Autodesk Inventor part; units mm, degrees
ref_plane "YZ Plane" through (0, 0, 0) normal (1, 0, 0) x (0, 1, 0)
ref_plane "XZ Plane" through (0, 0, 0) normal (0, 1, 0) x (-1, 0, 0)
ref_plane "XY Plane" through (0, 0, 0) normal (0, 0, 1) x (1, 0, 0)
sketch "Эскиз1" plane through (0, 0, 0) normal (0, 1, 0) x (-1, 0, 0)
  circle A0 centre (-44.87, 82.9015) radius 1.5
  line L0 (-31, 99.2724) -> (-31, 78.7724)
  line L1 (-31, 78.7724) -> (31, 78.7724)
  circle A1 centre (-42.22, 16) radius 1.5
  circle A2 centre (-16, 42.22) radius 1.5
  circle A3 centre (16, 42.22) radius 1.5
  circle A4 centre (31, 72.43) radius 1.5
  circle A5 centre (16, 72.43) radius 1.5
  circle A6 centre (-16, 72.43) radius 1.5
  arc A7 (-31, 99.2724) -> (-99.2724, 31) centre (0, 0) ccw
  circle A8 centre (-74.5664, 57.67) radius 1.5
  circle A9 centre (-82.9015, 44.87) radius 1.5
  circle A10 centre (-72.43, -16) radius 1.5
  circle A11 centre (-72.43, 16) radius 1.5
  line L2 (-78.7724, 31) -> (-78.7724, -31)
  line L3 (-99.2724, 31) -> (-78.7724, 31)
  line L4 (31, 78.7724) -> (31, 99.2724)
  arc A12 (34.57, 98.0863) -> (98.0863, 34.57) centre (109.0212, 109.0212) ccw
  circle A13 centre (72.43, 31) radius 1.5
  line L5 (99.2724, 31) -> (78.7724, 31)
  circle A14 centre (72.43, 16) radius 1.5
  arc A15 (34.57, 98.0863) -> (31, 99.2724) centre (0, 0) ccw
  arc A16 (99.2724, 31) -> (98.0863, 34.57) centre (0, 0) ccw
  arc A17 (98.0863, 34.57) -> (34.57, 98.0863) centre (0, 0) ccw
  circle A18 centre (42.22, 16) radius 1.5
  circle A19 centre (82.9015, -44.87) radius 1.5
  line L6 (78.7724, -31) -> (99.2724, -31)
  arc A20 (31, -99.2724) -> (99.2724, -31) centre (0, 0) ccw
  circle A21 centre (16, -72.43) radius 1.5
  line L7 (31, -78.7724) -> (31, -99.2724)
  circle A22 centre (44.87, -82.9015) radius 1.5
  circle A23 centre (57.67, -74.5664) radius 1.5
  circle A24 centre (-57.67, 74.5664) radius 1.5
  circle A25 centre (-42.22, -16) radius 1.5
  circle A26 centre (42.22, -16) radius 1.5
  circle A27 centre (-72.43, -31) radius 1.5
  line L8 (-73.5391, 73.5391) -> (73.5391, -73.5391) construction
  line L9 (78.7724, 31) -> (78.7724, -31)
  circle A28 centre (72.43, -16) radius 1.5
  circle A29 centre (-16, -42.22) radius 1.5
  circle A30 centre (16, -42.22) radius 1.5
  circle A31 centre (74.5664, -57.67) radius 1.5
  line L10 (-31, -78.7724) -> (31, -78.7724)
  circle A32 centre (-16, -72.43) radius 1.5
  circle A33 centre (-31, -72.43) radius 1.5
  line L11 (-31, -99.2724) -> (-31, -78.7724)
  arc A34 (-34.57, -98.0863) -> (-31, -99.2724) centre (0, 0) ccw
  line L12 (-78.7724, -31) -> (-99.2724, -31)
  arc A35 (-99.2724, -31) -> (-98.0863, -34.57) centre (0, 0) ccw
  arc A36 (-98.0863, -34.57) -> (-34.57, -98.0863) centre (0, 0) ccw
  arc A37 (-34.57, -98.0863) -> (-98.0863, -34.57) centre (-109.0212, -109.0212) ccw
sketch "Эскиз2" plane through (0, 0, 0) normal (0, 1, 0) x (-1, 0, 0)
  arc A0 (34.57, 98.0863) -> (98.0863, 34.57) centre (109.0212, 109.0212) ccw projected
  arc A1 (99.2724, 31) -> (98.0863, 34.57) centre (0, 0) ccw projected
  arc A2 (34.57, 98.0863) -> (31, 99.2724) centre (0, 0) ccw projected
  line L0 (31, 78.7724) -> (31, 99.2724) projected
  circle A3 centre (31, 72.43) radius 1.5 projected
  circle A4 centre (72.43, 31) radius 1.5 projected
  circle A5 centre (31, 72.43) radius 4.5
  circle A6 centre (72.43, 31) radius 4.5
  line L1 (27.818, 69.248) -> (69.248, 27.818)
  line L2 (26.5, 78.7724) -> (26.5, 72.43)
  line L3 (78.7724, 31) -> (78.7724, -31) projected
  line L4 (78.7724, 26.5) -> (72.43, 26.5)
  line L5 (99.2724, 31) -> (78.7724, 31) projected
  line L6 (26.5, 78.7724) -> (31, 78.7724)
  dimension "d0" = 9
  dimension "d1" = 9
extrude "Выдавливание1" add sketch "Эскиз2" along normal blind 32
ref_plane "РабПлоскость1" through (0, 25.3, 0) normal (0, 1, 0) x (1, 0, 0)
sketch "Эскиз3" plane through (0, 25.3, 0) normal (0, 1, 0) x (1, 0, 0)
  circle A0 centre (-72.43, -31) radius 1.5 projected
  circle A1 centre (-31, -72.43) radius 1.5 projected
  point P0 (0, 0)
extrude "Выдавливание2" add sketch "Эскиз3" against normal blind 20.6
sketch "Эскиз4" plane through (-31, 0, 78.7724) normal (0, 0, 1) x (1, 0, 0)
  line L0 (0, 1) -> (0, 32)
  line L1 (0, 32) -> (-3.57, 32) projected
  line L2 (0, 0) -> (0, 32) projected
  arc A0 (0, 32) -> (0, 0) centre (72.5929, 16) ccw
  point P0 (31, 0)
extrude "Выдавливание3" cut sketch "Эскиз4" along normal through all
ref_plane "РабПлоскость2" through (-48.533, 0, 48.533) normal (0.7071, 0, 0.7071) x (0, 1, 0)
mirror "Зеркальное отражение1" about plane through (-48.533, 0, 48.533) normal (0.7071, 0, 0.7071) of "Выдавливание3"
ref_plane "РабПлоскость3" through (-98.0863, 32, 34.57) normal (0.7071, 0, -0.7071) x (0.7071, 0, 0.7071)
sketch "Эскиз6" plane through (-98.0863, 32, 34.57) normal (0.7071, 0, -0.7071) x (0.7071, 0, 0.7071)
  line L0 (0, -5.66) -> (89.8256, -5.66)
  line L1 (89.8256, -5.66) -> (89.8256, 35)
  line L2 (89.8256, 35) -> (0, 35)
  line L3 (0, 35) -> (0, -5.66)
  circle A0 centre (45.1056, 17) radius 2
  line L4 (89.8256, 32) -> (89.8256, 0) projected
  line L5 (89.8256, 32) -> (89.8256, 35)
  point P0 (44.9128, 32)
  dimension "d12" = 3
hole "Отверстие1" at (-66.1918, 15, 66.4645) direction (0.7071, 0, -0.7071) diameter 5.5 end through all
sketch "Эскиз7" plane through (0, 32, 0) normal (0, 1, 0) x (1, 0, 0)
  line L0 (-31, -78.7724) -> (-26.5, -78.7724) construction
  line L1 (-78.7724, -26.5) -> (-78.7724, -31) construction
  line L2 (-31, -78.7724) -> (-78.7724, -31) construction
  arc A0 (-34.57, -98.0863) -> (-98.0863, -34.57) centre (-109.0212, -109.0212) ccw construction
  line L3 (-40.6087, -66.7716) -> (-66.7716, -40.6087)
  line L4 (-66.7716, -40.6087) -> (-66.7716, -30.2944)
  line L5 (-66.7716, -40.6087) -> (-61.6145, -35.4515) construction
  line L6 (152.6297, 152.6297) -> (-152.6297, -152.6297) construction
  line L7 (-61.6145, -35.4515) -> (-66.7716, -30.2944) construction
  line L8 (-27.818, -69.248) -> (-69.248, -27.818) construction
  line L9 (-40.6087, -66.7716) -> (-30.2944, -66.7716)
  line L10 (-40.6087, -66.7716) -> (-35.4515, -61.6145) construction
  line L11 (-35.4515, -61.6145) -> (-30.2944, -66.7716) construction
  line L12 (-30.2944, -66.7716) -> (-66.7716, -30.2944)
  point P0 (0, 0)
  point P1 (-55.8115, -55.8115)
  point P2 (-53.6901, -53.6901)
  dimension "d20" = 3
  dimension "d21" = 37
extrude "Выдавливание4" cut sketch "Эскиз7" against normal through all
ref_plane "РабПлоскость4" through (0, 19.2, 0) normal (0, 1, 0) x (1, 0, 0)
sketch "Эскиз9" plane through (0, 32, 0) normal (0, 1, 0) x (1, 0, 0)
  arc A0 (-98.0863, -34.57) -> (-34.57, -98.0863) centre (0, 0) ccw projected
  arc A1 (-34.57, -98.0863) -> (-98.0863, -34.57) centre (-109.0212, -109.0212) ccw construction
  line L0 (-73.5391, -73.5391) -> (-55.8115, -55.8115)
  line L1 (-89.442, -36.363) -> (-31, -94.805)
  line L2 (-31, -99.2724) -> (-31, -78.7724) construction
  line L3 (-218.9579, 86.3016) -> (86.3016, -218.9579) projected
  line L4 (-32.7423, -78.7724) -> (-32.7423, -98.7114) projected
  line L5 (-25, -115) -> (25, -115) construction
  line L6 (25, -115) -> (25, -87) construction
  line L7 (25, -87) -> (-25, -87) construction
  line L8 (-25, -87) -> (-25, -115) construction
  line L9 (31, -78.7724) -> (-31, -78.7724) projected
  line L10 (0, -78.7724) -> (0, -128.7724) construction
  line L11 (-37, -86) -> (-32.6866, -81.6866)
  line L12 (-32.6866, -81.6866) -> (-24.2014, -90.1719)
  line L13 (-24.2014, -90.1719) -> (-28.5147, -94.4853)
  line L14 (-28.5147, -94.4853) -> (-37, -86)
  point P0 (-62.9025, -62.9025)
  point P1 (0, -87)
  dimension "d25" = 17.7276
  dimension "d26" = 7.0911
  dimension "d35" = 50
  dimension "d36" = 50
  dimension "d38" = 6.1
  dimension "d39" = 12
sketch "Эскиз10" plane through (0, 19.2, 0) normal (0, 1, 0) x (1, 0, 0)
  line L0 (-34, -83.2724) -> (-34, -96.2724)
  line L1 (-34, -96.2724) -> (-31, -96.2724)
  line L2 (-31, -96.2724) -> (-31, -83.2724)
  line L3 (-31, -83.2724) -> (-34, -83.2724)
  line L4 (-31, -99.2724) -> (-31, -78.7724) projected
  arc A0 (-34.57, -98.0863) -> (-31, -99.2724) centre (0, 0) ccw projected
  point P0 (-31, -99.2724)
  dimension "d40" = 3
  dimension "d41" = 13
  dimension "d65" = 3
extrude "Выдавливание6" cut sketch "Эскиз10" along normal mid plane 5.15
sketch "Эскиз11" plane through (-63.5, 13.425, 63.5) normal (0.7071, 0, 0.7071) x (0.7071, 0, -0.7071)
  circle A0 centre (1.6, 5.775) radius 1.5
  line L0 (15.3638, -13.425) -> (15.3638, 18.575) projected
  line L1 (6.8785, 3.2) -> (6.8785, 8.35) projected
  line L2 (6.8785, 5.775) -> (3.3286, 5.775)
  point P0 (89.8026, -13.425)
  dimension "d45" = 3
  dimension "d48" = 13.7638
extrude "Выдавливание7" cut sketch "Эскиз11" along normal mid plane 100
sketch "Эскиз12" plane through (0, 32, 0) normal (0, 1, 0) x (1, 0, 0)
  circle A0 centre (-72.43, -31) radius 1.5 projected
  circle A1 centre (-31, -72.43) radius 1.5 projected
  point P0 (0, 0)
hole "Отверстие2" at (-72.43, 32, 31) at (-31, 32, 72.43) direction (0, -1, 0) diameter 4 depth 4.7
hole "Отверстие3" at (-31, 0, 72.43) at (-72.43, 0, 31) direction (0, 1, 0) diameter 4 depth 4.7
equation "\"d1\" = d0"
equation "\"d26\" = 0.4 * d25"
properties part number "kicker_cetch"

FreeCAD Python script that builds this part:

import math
import FreeCAD as App
import Part
import Sketcher

V = App.Vector
Q = App.Units.Quantity


def add_polygon(sketch, points):
    """Adds a closed chain of lines whose ends are joined by coincident constraints."""
    first, n = sketch.GeometryCount, len(points)
    for a, b in zip(points, points[1:] + points[:1]):
        sketch.addGeometry(Part.LineSegment(App.Vector(*a, 0), App.Vector(*b, 0)), False)
    for i in range(n):
        sketch.addConstraint(Sketcher.Constraint("Coincident", first + i, 2, first + (i + 1) % n, 1))

doc = App.newDocument("Part")
body = doc.addObject("PartDesign::Body", "Body")

sketch1 = body.newObject("Sketcher::SketchObject", "Sketch")
sketch1.AttachmentSupport = (doc.getObject("XZ_Plane"), [""])
sketch1.MapMode = "FlatFace"
sketch1.addGeometry([
    Part.ArcOfCircle(Part.Circle(V(-109, 109, 0), V(0, 0, 1), 75.2), math.radians(-82), math.radians(-8)),
    Part.ArcOfCircle(Part.Circle(V(0, 0, 0), V(0, 0, 1), 104), math.radians(107.34), math.radians(109.41)),
    Part.LineSegment(V(-31, 99.3, 0), V(-31, 78.8, 0)),
    Part.LineSegment(V(-31, 78.8, 0), V(-26.5, 78.8, 0)),
    Part.LineSegment(V(-26.5, 78.8, 0), V(-26.5, 72.4, 0)),
    Part.ArcOfCircle(Part.Circle(V(-31, 72.4, 0), V(0, 0, 1), 4.5), math.radians(-45), math.radians(0)),
    Part.LineSegment(V(-27.8, 69.2, 0), V(-69.2, 27.8, 0)),
    Part.ArcOfCircle(Part.Circle(V(-72.4, 31, 0), V(0, 0, 1), 4.5), math.radians(-90), math.radians(-45)),
    Part.LineSegment(V(-72.4, 26.5, 0), V(-78.8, 26.5, 0)),
    Part.LineSegment(V(-78.8, 26.5, 0), V(-78.8, 31, 0)),
    Part.LineSegment(V(-78.8, 31, 0), V(-99.3, 31, 0)),
    Part.ArcOfCircle(Part.Circle(V(0, 0, 0), V(0, 0, 1), 104), math.radians(160.58), math.radians(162.66)),
    Part.Circle(V(-72.4, 31, 0), V(0, 0, 1), 1.5),
    Part.Circle(V(-31, 72.4, 0), V(0, 0, 1), 1.5),
], False)
sketch1.addConstraint([
    Sketcher.Constraint("Coincident", 0, 2, 1, 2),
    Sketcher.Constraint("Coincident", 1, 1, 2, 1),
    Sketcher.Constraint("Coincident", 2, 2, 3, 1),
    Sketcher.Constraint("Coincident", 3, 2, 4, 1),
    Sketcher.Constraint("Tangent", 4, 2, 5, 2),
    Sketcher.Constraint("Tangent", 5, 1, 6, 1),
    Sketcher.Constraint("Tangent", 6, 2, 7, 2),
    Sketcher.Constraint("Tangent", 7, 1, 8, 1),
    Sketcher.Constraint("Coincident", 8, 2, 9, 1),
    Sketcher.Constraint("Coincident", 9, 2, 10, 1),
    Sketcher.Constraint("Coincident", 10, 2, 11, 2),
    Sketcher.Constraint("Coincident", 11, 1, 0, 1),
    Sketcher.Constraint("Vertical", 2),
    Sketcher.Constraint("Horizontal", 3),
    Sketcher.Constraint("Vertical", 4),
    Sketcher.Constraint("Horizontal", 8),
    Sketcher.Constraint("Vertical", 9),
    Sketcher.Constraint("Horizontal", 10),
    Sketcher.Constraint("Coincident", 12, 3, 7, 3),
    Sketcher.Constraint("Coincident", 13, 3, 5, 3),
    Sketcher.Constraint("Equal", 5, 7),
    Sketcher.Constraint("Equal", 12, 13),
    Sketcher.Constraint("Horizontal", 12, 3, 9, 2),
    Sketcher.Constraint("Vertical", 13, 3, 1, 1),
    Sketcher.Constraint("Equal", 10, 2),
    Sketcher.Constraint("Equal", 8, 4),
    Sketcher.Constraint("Radius", 5, Q("4.5 mm")),
    Sketcher.Constraint("Diameter", 12, Q("3 mm")),
    Sketcher.Constraint("Angle", 6, Q("-135 deg")),
    Sketcher.Constraint("Radius", 0, Q("75.25 mm")),
    Sketcher.Constraint("DistanceX", 10, 2, 10, 1, Q("20.5 mm")),
    Sketcher.Constraint("DistanceX", 5, 3, -1, 1, Q("31 mm")),
    Sketcher.Constraint("DistanceY", -1, 1, 7, 3, Q("31 mm")),
    Sketcher.Constraint("Radius", 11, Q("103.967 mm")),
    Sketcher.Constraint("Radius", 1, Q("104.0332 mm")),
    Sketcher.Constraint("DistanceY", -1, 1, 5, 3, Q("72.43 mm")),
    Sketcher.Constraint("DistanceX", 0, 2, -1, 1, Q("34.57 mm")),
    Sketcher.Constraint("DistanceY", -1, 1, 11, 1, Q("34.57 mm")),
    Sketcher.Constraint("DistanceX", 8, 2, 8, 1, Q("6.3424 mm")),
    Sketcher.Constraint("DistanceX", 0, 3, 1, 3, Q("109.032 mm")),
    Sketcher.Constraint("DistanceY", 11, 3, 0, 3, Q("109.011 mm")),
])
pad1 = body.newObject("PartDesign::Pad", "Pad")
pad1.Profile = sketch1
pad1.Length = 32
pad1.Reversed = True

sketch2 = body.newObject("Sketcher::SketchObject", "Sketch001")
sketch2.AttachmentSupport = (doc.getObject("XZ_Plane"), [""])
sketch2.MapMode = "FlatFace"
sketch2.AttachmentOffset = App.Placement(V(0, 0, -25.3), App.Rotation())
sketch2.addGeometry([
    Part.Circle(V(-72.4, 31, 0), V(0, 0, 1), 1.5),
    Part.Circle(V(-31, 72.4, 0), V(0, 0, 1), 1.5),
], False)
sketch2.addConstraint([
    Sketcher.Constraint("Equal", 0, 1),
    Sketcher.Constraint("Diameter", 0, Q("3 mm")),
    Sketcher.Constraint("DistanceY", -1, 1, 0, 3, Q("31 mm")),
    Sketcher.Constraint("DistanceX", 1, 3, -1, 1, Q("31 mm")),
    Sketcher.Constraint("DistanceX", 0, 3, -1, 1, Q("72.43 mm")),
    Sketcher.Constraint("DistanceY", -1, 1, 1, 3, Q("72.43 mm")),
])
pad2 = body.newObject("PartDesign::Pad", "Pad001")
pad2.Profile = sketch2
pad2.Length = 20.6

sketch3 = body.newObject("Sketcher::SketchObject", "Sketch002")
sketch3.AttachmentSupport = (doc.getObject("XY_Plane"), [""])
sketch3.MapMode = "FlatFace"
sketch3.AttachmentOffset = App.Placement(V(0, 0, 78.7724), App.Rotation())
sketch3.addGeometry([
    Part.LineSegment(V(-31, 0, 0), V(-31, 32, 0)),
    Part.ArcOfCircle(Part.Circle(V(42, 16, 0), V(0, 0, 1), 74), math.radians(168), math.radians(192)),
], False)
sketch3.addConstraint([
    Sketcher.Constraint("Coincident", 0, 1, 1, 2),
    Sketcher.Constraint("Coincident", 1, 1, 0, 2),
    Sketcher.Constraint("Vertical", 0),
    Sketcher.Constraint("PointOnObject", 0, 1, -1),
    Sketcher.Constraint("DistanceY", 0, 1, 0, 2, Q("32 mm")),
    Sketcher.Constraint("DistanceX", 0, 1, -1, 1, Q("31 mm")),
    Sketcher.Constraint("Radius", 1, Q("74.3352 mm")),
])
pocket1 = body.newObject("PartDesign::Pocket", "Pocket")
pocket1.Profile = sketch3
pocket1.Type = "ThroughAll"
pocket1.Reversed = True
doc.recompute()

datumplane = body.newObject("PartDesign::Plane", "DatumPlane")
datumplane.Placement = App.Placement(V(0, 0, 0), App.Rotation(V(0.707106781, 0, -0.707106781), V(0, -1, 0), V(-0.707106781, 0, -0.707106781), "ZXY"))
mirrored = body.newObject("PartDesign::Mirrored", "Mirrored")
mirrored.Originals = [pocket1]
mirrored.MirrorPlane = (datumplane, [""])
body.Tip = mirrored

sketch4 = body.newObject("Sketcher::SketchObject", "Sketch003")
sketch4.Placement = App.Placement(V(-66.32815, 0, 66.32815), App.Rotation(V(0.707106781, 0, 0.707106781), V(0, 0.999999999, 0), V(-0.707106781, 0, 0.707106781), "ZXY"))
sketch4.addGeometry(Part.Circle(V(0.2, 15, 0), V(0, 0, 1), 2.8), False)
sketch4.addConstraint([
    Sketcher.Constraint("Diameter", 0, Q("5.5 mm")),
    Sketcher.Constraint("DistanceY", -1, 1, 0, 3, Q("15 mm")),
    Sketcher.Constraint("DistanceX", -1, 1, 0, 3, Q("0.1928 mm")),
])
doc.recompute()
hole = body.newObject("PartDesign::Hole", "Hole")
hole.Profile = sketch4
hole.ThreadType = "None"
hole.Diameter = 5.5
hole.DepthType = "ThroughAll"

sketch5 = body.newObject("Sketcher::SketchObject", "Sketch004")
sketch5.AttachmentSupport = (doc.getObject("XZ_Plane"), [""])
sketch5.MapMode = "FlatFace"
sketch5.AttachmentOffset = App.Placement(V(0, 0, -32), App.Rotation())
add_polygon(sketch5, [(-67, 41), (-41, 67), (-30, 67), (-67, 30)])
sketch5.addConstraint([
    Sketcher.Constraint("Horizontal", 1),
    Sketcher.Constraint("Vertical", 3),
    Sketcher.Constraint("Parallel", 0, 2),
    Sketcher.Constraint("Equal", 1, 3),
    Sketcher.Constraint("Distance", 0, Q("37 mm")),
    Sketcher.Constraint("DistanceX", 1, 1, 1, 2, Q("10.3143 mm")),
    Sketcher.Constraint("DistanceX", 0, 2, -1, 1, Q("40.6087 mm")),
    Sketcher.Constraint("DistanceY", -1, 1, 0, 2, Q("66.7716 mm")),
])
pocket2 = body.newObject("PartDesign::Pocket", "Pocket001")
pocket2.Profile = sketch5
pocket2.Type = "ThroughAll"
pocket2.Reversed = True

sketch6 = body.newObject("Sketcher::SketchObject", "Sketch005")
sketch6.AttachmentSupport = (doc.getObject("XZ_Plane"), [""])
sketch6.MapMode = "FlatFace"
sketch6.AttachmentOffset = App.Placement(V(0, 0, -19.2), App.Rotation())
add_polygon(sketch6, [(-31, 83.3), (-34, 83.3), (-34, 96.3), (-31, 96.3)])
sketch6.addConstraint([
    Sketcher.Constraint("Horizontal", 0),
    Sketcher.Constraint("Vertical", 1),
    Sketcher.Constraint("Horizontal", 2),
    Sketcher.Constraint("Vertical", 3),
    Sketcher.Constraint("DistanceX", 0, 2, 0, 1, Q("3 mm")),
    Sketcher.Constraint("DistanceY", 1, 1, 1, 2, Q("13 mm")),
    Sketcher.Constraint("DistanceX", 0, 2, -1, 1, Q("34 mm")),
    Sketcher.Constraint("DistanceY", -1, 1, 0, 2, Q("83.2724 mm")),
])
pocket3 = body.newObject("PartDesign::Pocket", "Pocket002")
pocket3.Profile = sketch6
pocket3.Length = 5.15
pocket3.Midplane = True

sketch7 = body.newObject("Sketcher::SketchObject", "Sketch006")
sketch7.Placement = App.Placement(V(-63.5, 13.425, 63.5), App.Rotation(V(0.707106781, 0, -0.707106781), V(0, 0.999999999, 0), V(0.707106781, 0, 0.707106781), "ZXY"))
sketch7.addGeometry(Part.Circle(V(1.6, 5.8, 0), V(0, 0, 1), 1.5), False)
sketch7.addConstraint([
    Sketcher.Constraint("Diameter", 0, Q("3 mm")),
    Sketcher.Constraint("DistanceX", -1, 1, 0, 3, Q("1.6 mm")),
    Sketcher.Constraint("DistanceY", -1, 1, 0, 3, Q("5.775 mm")),
])
pocket4 = body.newObject("PartDesign::Pocket", "Pocket003")
pocket4.Profile = sketch7
pocket4.Length = 100
pocket4.Midplane = True

sketch8 = body.newObject("Sketcher::SketchObject", "Sketch007")
sketch8.AttachmentSupport = (doc.getObject("XZ_Plane"), [""])
sketch8.MapMode = "FlatFace"
sketch8.AttachmentOffset = App.Placement(V(0, 0, -32), App.Rotation())
sketch8.addGeometry([
    Part.Circle(V(-72.4, 31, 0), V(0, 0, 1), 2),
    Part.Circle(V(-31, 72.4, 0), V(0, 0, 1), 2),
], False)
sketch8.addConstraint([
    Sketcher.Constraint("Equal", 0, 1),
    Sketcher.Constraint("Diameter", 0, Q("4 mm")),
    Sketcher.Constraint("DistanceY", -1, 1, 0, 3, Q("31 mm")),
    Sketcher.Constraint("DistanceX", 1, 3, -1, 1, Q("31 mm")),
    Sketcher.Constraint("DistanceX", 0, 3, -1, 1, Q("72.43 mm")),
    Sketcher.Constraint("DistanceY", -1, 1, 1, 3, Q("72.43 mm")),
])
doc.recompute()
hole2 = body.newObject("PartDesign::Hole", "Hole001")
hole2.Profile = sketch8
hole2.ThreadType = "None"
hole2.Diameter = 4
hole2.DepthType = "Dimension"
hole2.Depth = 4.7
hole2.DrillPoint = "Flat"
hole2.Reversed = True

sketch9 = body.newObject("Sketcher::SketchObject", "Sketch008")
sketch9.AttachmentSupport = (doc.getObject("XZ_Plane"), [""])
sketch9.MapMode = "FlatFace"
sketch9.addGeometry([
    Part.Circle(V(-31, 72.4, 0), V(0, 0, 1), 2),
    Part.Circle(V(-72.4, 31, 0), V(0, 0, 1), 2),
], False)
sketch9.addConstraint([
    Sketcher.Constraint("Equal", 0, 1),
    Sketcher.Constraint("Diameter", 0, Q("4 mm")),
    Sketcher.Constraint("DistanceX", 0, 3, -1, 1, Q("31 mm")),
    Sketcher.Constraint("DistanceY", -1, 1, 1, 3, Q("31 mm")),
    Sketcher.Constraint("DistanceY", -1, 1, 0, 3, Q("72.43 mm")),
    Sketcher.Constraint("DistanceX", 1, 3, -1, 1, Q("72.43 mm")),
])
doc.recompute()
hole3 = body.newObject("PartDesign::Hole", "Hole002")
hole3.Profile = sketch9
hole3.ThreadType = "None"
hole3.Diameter = 4
hole3.DepthType = "Dimension"
hole3.Depth = 4.7
hole3.DrillPoint = "Flat"

doc.recompute()
